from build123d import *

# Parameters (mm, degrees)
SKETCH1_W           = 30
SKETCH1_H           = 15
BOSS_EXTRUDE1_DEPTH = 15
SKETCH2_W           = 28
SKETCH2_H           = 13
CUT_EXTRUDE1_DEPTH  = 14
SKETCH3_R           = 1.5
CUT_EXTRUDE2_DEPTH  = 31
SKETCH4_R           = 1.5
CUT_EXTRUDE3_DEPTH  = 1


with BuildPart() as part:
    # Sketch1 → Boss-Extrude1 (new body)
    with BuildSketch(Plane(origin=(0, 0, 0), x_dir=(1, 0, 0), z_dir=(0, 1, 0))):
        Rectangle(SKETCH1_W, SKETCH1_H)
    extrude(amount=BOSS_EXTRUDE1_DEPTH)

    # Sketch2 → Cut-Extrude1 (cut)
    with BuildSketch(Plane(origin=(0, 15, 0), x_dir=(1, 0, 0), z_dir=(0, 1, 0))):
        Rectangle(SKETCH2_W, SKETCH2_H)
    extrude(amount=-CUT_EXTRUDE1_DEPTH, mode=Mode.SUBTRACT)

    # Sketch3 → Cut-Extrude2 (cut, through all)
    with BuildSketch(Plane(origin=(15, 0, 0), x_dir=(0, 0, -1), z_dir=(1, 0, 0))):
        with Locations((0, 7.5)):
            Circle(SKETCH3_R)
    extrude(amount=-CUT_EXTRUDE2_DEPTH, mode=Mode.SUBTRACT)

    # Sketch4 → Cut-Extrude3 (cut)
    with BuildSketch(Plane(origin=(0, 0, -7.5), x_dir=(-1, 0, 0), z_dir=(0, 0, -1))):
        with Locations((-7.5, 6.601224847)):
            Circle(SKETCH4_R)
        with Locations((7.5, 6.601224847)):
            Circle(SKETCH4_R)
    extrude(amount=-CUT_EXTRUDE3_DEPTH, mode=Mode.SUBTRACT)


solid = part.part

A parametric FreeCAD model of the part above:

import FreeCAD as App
import Part
import Sketcher

V = App.Vector
Q = App.Units.Quantity

doc = App.newDocument("Part")
body = doc.addObject("PartDesign::Body", "Body")

sketch1 = doc.addObject("Sketcher::SketchObject", "Sketch")
body.addObject(sketch1)
sketch1.AttachmentSupport = (doc.XZ_Plane, [""])
sketch1.MapMode = "FlatFace"
sketch1.addGeometry([
    Part.LineSegment(V(-15, -8, 0), V(-15, 8, 0)),
    Part.LineSegment(V(-15, 8, 0), V(15, 8, 0)),
    Part.LineSegment(V(15, 8, 0), V(15, -8, 0)),
    Part.LineSegment(V(15, -8, 0), V(-15, -8, 0)),
], False)
sketch1.addConstraint([
    Sketcher.Constraint("Coincident", 0, 2, 1, 1),
    Sketcher.Constraint("Coincident", 1, 2, 2, 1),
    Sketcher.Constraint("Coincident", 2, 2, 3, 1),
    Sketcher.Constraint("Coincident", 3, 2, 0, 1),
    Sketcher.Constraint("Vertical", 0),
    Sketcher.Constraint("Horizontal", 1),
    Sketcher.Constraint("Vertical", 2),
    Sketcher.Constraint("Horizontal", 3),
    Sketcher.Constraint("Symmetric", 0, 2, 2, 2, -1, 1),
    Sketcher.Constraint("DistanceX", 1, 1, 1, 2, Q("30 mm")),
    Sketcher.Constraint("DistanceY", 0, 1, 0, 2, Q("15 mm")),
])
pad1 = doc.addObject("PartDesign::Pad", "Pad")
body.addObject(pad1)
pad1.Profile = sketch1
pad1.Length = 15
pad1.Reversed = True

sketch2 = doc.addObject("Sketcher::SketchObject", "Sketch001")
body.addObject(sketch2)
sketch2.AttachmentSupport = (doc.XZ_Plane, [""])
sketch2.MapMode = "FlatFace"
sketch2.AttachmentOffset = App.Placement(V(0, 0, -15), App.Rotation())
sketch2.addGeometry([
    Part.LineSegment(V(-14, -6, 0), V(-14, 6, 0)),
    Part.LineSegment(V(-14, 6, 0), V(14, 6, 0)),
    Part.LineSegment(V(14, 6, 0), V(14, -6, 0)),
    Part.LineSegment(V(14, -6, 0), V(-14, -6, 0)),
], False)
sketch2.addConstraint([
    Sketcher.Constraint("Coincident", 0, 2, 1, 1),
    Sketcher.Constraint("Coincident", 1, 2, 2, 1),
    Sketcher.Constraint("Coincident", 2, 2, 3, 1),
    Sketcher.Constraint("Coincident", 3, 2, 0, 1),
    Sketcher.Constraint("Vertical", 0),
    Sketcher.Constraint("Horizontal", 1),
    Sketcher.Constraint("Vertical", 2),
    Sketcher.Constraint("Horizontal", 3),
    Sketcher.Constraint("Symmetric", 0, 2, 2, 2, -1, 1),
    Sketcher.Constraint("DistanceX", 1, 1, 1, 2, Q("28 mm")),
    Sketcher.Constraint("DistanceY", 0, 1, 0, 2, Q("13 mm")),
])
pocket1 = doc.addObject("PartDesign::Pocket", "Pocket")
body.addObject(pocket1)
pocket1.Profile = sketch2
pocket1.Length = 14
pocket1.Reversed = True

sketch3 = doc.addObject("Sketcher::SketchObject", "Sketch002")
body.addObject(sketch3)
sketch3.AttachmentSupport = (doc.YZ_Plane, [""])
sketch3.MapMode = "FlatFace"
sketch3.AttachmentOffset = App.Placement(V(0, 0, 15), App.Rotation())
sketch3.addGeometry(Part.Circle(V(7.5, 0, 0), V(0, 0, 1), 1.5), False)
sketch3.addConstraint([
    Sketcher.Constraint("PointOnObject", 0, 3, -1),
    Sketcher.Constraint("Diameter", 0, Q("3 mm")),
    Sketcher.Constraint("DistanceX", -1, 1, 0, 3, Q("7.5 mm")),
])
pocket2 = doc.addObject("PartDesign::Pocket", "Pocket001")
body.addObject(pocket2)
pocket2.Profile = sketch3
pocket2.Type = "ThroughAll"

sketch4 = doc.addObject("Sketcher::SketchObject", "Sketch003")
body.addObject(sketch4)
sketch4.AttachmentSupport = (doc.XY_Plane, [""])
sketch4.MapMode = "FlatFace"
sketch4.AttachmentOffset = App.Placement(V(0, 0, -7.5), App.Rotation())
sketch4.addGeometry([
    Part.Circle(V(7.5, 6.6, 0), V(0, 0, 1), 1.5),
    Part.Circle(V(-7.5, 6.6, 0), V(0, 0, 1), 1.5),
], False)
sketch4.addConstraint([
    Sketcher.Constraint("Equal", 0, 1),
    Sketcher.Constraint("Symmetric", 0, 3, 1, 3, -2),
    Sketcher.Constraint("Diameter", 0, Q("3 mm")),
    Sketcher.Constraint("DistanceX", 1, 3, 0, 3, Q("15 mm")),
    Sketcher.Constraint("DistanceY", -1, 1, 0, 3, Q("6.601225 mm")),
])
pocket3 = doc.addObject("PartDesign::Pocket", "Pocket002")
body.addObject(pocket3)
pocket3.Profile = sketch4
pocket3.Length = 1
pocket3.Reversed = True

doc.recompute()
